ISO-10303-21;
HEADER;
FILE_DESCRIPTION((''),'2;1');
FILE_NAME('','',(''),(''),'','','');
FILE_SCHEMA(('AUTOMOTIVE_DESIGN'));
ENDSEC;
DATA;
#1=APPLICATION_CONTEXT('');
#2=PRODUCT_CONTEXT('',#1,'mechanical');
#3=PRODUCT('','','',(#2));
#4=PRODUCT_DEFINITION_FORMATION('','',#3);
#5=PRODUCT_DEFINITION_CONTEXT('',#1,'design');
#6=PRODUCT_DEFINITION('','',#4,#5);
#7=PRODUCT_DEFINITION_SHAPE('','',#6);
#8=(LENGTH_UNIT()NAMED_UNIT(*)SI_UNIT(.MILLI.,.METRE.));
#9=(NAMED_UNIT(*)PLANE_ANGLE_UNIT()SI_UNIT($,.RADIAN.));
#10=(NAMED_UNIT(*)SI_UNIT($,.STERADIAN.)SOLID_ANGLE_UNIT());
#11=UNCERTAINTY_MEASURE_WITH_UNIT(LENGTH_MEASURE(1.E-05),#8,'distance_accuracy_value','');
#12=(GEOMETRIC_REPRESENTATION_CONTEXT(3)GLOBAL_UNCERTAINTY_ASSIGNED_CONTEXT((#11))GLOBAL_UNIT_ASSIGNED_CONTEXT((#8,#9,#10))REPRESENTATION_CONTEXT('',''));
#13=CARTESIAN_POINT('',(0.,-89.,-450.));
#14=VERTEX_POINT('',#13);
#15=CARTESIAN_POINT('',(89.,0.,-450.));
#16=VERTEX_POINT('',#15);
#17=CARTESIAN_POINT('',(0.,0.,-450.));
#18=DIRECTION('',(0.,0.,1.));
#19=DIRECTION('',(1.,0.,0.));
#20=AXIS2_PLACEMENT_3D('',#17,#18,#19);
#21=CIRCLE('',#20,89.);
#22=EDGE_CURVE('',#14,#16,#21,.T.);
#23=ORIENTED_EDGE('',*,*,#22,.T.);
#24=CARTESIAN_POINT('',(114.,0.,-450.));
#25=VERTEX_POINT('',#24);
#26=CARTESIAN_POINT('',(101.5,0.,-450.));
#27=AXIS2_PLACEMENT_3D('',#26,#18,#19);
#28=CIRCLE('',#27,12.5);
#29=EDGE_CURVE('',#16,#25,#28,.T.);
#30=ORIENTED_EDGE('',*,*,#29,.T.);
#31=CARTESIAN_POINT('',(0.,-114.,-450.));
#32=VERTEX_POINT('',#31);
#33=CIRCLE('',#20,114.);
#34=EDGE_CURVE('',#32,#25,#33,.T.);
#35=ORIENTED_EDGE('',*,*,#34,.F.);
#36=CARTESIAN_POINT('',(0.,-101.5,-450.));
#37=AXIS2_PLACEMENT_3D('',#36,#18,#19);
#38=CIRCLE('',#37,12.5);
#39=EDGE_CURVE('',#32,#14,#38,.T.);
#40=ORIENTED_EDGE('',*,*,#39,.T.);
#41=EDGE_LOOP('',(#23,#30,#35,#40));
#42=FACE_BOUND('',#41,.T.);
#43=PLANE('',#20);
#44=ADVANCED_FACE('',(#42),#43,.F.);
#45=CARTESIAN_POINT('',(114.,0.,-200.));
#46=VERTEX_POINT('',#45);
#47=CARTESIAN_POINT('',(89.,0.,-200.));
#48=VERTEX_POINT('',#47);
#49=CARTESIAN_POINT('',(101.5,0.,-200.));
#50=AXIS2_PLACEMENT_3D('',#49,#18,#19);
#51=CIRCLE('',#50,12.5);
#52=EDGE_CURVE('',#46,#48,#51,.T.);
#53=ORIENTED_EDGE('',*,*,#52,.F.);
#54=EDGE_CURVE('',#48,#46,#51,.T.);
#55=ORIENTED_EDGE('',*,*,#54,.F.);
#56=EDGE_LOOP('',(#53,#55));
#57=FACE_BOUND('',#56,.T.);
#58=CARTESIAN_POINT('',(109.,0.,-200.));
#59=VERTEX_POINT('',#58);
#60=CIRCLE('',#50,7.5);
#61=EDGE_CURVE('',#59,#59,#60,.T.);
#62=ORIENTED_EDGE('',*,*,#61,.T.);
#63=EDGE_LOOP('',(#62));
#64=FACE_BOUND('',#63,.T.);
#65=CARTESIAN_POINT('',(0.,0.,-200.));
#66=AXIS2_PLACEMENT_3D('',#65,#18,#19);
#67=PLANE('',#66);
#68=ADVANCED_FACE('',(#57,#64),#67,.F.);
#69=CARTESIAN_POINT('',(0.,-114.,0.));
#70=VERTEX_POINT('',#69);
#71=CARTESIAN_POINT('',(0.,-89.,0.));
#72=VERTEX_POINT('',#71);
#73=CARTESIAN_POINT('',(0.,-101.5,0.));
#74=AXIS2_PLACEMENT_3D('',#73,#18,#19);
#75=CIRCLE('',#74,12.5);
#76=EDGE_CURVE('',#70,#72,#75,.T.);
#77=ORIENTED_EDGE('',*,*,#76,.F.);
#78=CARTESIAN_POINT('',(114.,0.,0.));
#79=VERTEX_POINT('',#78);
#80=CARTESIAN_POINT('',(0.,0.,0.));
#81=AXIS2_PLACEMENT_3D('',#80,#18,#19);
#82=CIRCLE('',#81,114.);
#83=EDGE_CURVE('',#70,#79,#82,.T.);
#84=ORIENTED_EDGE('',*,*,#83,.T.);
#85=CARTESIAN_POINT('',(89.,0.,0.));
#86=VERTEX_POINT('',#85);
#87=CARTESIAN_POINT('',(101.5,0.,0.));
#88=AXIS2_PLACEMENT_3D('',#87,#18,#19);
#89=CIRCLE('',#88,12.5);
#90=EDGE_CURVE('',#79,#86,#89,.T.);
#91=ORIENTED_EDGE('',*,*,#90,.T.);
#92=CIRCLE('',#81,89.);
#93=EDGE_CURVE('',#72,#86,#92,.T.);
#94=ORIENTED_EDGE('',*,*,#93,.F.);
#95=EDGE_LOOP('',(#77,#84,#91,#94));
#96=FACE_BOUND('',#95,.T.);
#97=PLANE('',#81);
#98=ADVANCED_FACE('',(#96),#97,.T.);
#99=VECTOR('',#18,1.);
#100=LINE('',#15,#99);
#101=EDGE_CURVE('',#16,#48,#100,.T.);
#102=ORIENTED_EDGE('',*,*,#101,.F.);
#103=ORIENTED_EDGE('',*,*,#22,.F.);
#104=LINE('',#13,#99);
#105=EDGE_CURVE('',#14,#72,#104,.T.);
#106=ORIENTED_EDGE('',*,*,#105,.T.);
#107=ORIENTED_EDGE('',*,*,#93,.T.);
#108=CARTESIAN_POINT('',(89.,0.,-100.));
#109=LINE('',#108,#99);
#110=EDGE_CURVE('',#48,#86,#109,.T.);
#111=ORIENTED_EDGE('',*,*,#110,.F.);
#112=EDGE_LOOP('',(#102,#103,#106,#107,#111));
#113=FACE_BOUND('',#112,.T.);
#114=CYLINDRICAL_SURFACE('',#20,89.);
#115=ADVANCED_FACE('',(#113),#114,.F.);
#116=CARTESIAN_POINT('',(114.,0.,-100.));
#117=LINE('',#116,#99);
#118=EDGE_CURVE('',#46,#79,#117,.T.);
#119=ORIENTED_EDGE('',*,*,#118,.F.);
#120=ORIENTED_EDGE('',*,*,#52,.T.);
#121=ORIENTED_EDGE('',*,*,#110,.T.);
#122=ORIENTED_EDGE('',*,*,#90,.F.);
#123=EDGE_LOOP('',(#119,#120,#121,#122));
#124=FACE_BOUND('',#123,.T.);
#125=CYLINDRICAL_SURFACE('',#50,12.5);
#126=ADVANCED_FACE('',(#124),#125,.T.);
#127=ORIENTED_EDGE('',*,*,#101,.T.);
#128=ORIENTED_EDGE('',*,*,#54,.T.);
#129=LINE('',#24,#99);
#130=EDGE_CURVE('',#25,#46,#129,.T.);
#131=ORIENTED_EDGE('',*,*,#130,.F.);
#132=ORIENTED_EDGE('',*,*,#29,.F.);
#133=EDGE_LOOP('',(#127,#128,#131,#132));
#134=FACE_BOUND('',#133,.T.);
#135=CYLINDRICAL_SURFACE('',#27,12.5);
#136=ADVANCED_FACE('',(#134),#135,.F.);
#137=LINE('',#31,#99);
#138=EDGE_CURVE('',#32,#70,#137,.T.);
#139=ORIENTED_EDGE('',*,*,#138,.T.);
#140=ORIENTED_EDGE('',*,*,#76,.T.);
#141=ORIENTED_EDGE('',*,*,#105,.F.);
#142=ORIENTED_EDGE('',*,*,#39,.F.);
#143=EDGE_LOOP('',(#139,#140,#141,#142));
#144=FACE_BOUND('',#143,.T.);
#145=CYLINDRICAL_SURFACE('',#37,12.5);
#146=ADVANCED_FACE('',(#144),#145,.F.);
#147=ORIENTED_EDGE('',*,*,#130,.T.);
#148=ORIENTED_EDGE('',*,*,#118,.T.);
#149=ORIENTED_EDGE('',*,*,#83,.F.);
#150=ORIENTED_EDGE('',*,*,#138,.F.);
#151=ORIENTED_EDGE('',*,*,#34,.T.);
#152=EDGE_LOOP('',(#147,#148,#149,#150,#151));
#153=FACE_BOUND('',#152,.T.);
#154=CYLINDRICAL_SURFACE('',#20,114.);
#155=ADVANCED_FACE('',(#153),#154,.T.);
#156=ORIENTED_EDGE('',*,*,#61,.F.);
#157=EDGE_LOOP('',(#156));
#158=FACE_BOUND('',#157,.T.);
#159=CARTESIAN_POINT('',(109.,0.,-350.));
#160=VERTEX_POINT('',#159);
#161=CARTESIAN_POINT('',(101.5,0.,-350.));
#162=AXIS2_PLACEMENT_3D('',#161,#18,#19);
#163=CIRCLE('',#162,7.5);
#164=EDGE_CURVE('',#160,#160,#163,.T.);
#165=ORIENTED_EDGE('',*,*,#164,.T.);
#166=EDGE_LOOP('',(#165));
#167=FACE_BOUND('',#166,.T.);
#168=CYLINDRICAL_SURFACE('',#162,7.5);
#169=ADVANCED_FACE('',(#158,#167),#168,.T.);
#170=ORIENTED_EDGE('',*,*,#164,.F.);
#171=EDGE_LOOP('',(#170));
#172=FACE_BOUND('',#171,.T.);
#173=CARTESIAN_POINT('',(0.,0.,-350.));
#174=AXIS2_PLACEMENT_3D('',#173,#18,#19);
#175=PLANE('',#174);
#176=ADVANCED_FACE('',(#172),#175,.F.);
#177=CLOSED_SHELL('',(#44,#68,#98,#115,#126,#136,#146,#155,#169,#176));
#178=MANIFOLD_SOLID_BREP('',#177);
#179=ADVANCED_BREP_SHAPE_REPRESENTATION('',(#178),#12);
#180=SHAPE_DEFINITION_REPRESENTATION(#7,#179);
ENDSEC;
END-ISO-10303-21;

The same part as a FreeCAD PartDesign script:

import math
import FreeCAD as App
import Part
import Sketcher
Q = App.Units.Quantity

doc = App.newDocument("Part")
body = doc.addObject("PartDesign::Body", "Body")

sketch1 = body.newObject("Sketcher::SketchObject", "Sketch")
sketch1.AttachmentSupport = (doc.getObject("XY_Plane"), [""])
sketch1.MapMode = "FlatFace"
sketch1.addGeometry([
    Part.ArcOfCircle(Part.Circle(App.Vector(101.5, 0, 0), App.Vector(0, 0, 1), 12.5), math.radians(180), math.radians(360)),
    Part.ArcOfCircle(Part.Circle(App.Vector(0, 0, 0), App.Vector(0, 0, 1), 89), math.radians(-90), math.radians(0)),
    Part.ArcOfCircle(Part.Circle(App.Vector(0, -101.5, 0), App.Vector(0, 0, 1), 12.5), math.radians(0), math.radians(90)),
    Part.ArcOfCircle(Part.Circle(App.Vector(0, -101.5, 0), App.Vector(0, 0, 1), 12.5), math.radians(-90), math.radians(0)),
    Part.ArcOfCircle(Part.Circle(App.Vector(0, 0, 0), App.Vector(0, 0, 1), 114), math.radians(-90), math.radians(0)),
], False)
sketch1.addConstraint([
    Sketcher.Constraint("Tangent", 0, 1, 1, 2),
    Sketcher.Constraint("Tangent", 1, 1, 2, 2),
    Sketcher.Constraint("Tangent", 2, 1, 3, 2),
    Sketcher.Constraint("Tangent", 3, 1, 4, 1),
    Sketcher.Constraint("Tangent", 4, 2, 0, 2),
    Sketcher.Constraint("Coincident", 1, 3, -1, 1),
    Sketcher.Constraint("Coincident", 4, 3, -1, 1),
    Sketcher.Constraint("Equal", 0, 2),
    Sketcher.Constraint("PointOnObject", 0, 3, -1),
    Sketcher.Constraint("PointOnObject", 2, 3, -2),
    Sketcher.Constraint("Horizontal", 3, 3, 2, 1),
    Sketcher.Constraint("Radius", 1, Q("89 mm")),
    Sketcher.Constraint("Radius", 4, Q("114 mm")),
])
pad1 = body.newObject("PartDesign::Pad", "Pad")
pad1.Profile = sketch1
pad1.Length = 450
pad1.Reversed = True
body2 = doc.addObject("PartDesign::Body", "Body001")

sketch2 = body2.newObject("Sketcher::SketchObject", "Sketch001")
sketch2.AttachmentSupport = (doc.getObject("XY_Plane001"), [""])
sketch2.MapMode = "FlatFace"
sketch2.addGeometry(Part.Circle(App.Vector(101.5, 0, 0), App.Vector(0, 0, 1), 7.5), False)
sketch2.addConstraint([
    Sketcher.Constraint("PointOnObject", 0, 3, -1),
    Sketcher.Constraint("Diameter", 0, Q("15 mm")),
    Sketcher.Constraint("DistanceX", -1, 1, 0, 3, Q("101.5 mm")),
])
pad2 = body2.newObject("PartDesign::Pad", "Pad001")
pad2.Profile = sketch2
pad2.Length = 350
pad2.Reversed = True
body.AllowCompound = True
doc.recompute()

boolean = body.newObject("PartDesign::Boolean", "Boolean")
boolean.Type = "Fuse"
boolean.addObjects([body2])

sketch3 = body.newObject("Sketcher::SketchObject", "Sketch002")
sketch3.AttachmentSupport = (doc.getObject("XY_Plane"), [""])
sketch3.MapMode = "FlatFace"
sketch3.addGeometry([
    Part.Circle(App.Vector(101.5, 0, 0), App.Vector(0, 0, 1), 12.5),
    Part.Circle(App.Vector(101.5, 0, 0), App.Vector(0, 0, 1), 7.5),
], False)
sketch3.addConstraint([
    Sketcher.Constraint("Coincident", 1, 3, 0, 3),
    Sketcher.Constraint("PointOnObject", 0, 3, -1),
    Sketcher.Constraint("Diameter", 0, Q("25 mm")),
    Sketcher.Constraint("Diameter", 1, Q("15 mm")),
    Sketcher.Constraint("DistanceX", -1, 1, 0, 3, Q("101.5 mm")),
])
pad3 = body.newObject("PartDesign::Pad", "Pad002")
pad3.Profile = sketch3
pad3.Length = 200
pad3.Reversed = True

doc.recompute()
